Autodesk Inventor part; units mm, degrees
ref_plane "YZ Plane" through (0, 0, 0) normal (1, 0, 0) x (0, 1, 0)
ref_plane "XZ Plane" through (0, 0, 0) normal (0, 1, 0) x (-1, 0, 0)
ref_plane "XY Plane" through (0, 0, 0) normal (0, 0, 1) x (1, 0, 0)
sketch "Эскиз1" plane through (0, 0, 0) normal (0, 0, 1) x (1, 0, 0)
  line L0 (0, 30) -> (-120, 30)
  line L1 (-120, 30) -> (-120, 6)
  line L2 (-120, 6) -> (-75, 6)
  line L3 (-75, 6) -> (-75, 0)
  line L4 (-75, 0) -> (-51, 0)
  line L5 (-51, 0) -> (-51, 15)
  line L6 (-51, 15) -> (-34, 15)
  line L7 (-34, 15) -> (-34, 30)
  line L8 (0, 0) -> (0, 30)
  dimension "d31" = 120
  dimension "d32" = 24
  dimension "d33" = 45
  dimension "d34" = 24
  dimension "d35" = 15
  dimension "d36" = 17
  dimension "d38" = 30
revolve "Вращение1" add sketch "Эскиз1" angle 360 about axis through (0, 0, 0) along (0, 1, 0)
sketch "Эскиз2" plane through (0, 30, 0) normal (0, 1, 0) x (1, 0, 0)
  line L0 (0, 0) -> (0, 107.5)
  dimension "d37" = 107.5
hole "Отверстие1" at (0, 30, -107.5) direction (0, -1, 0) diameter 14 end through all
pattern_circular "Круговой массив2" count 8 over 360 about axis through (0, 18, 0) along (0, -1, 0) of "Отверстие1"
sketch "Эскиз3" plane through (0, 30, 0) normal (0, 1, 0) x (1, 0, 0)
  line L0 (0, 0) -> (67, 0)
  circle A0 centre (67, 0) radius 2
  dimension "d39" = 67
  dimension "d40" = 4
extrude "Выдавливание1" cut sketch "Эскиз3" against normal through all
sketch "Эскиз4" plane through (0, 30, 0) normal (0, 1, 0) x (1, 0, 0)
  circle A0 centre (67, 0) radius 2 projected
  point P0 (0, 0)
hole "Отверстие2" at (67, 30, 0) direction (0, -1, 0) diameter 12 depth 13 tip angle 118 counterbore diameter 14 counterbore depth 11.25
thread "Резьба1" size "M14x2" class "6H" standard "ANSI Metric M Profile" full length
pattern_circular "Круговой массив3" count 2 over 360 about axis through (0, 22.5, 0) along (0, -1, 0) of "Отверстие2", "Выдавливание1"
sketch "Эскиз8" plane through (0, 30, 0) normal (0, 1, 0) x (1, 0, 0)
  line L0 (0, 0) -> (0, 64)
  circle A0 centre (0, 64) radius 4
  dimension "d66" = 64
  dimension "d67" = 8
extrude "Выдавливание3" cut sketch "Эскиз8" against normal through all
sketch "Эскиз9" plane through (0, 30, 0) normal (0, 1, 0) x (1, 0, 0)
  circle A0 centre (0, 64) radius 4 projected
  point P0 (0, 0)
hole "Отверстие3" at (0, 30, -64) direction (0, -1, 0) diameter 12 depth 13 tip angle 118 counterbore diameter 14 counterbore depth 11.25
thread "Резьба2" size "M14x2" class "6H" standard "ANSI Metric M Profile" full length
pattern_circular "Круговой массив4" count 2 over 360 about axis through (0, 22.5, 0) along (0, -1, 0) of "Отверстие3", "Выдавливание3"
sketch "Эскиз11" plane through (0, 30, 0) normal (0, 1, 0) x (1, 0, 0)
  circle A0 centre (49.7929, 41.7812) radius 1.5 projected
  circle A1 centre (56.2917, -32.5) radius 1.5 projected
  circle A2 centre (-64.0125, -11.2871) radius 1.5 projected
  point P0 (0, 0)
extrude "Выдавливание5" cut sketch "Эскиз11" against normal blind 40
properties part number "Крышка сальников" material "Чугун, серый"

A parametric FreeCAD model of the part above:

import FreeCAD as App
import Part
import Sketcher
from FreeCAD import Vector
Q = App.Units.Quantity

doc = App.newDocument("Part")
params = doc.addObject("Spreadsheet::Sheet", "Params")
for row, (alias, value) in enumerate([
    ("sketch1_width", "45 mm"),
    ("sketch1_width2", "24 mm"),
    ("sketch1_width3", "17 mm"),
    ("sketch1_height", "15 mm"),
    ("revolution_angle", "360 deg"),
    ("sketch2_diameter", "14 mm"),
    ("hole_diameter", "14 mm"),
    ("sketch3_diameter", "4 mm"),
    ("sketch4_diameter", "12 mm"),
    ("hole2_diameter", "12 mm"),
    ("hole2_depth", "13 mm"),
    ("hole2_cbore_diameter", "14 mm"),
    ("hole2_cbore_depth", "11.25 mm"),
    ("sketch5_diameter", "8 mm"),
    ("sketch6_diameter", "12 mm"),
    ("hole3_diameter", "12 mm"),
    ("hole3_depth", "13 mm"),
    ("hole3_cbore_diameter", "14 mm"),
    ("hole3_cbore_depth", "11.25 mm"),
    ("sketch7_diameter", "3 mm"),
    ("pocket3_length", "40 mm"),
], start=1):
    params.set(f"A{row}", alias)
    params.set(f"B{row}", "=" + value)
    params.setAlias(f"B{row}", alias)

body = doc.addObject("PartDesign::Body", "Body")

# Sketch on XY plane
sketch1 = body.newObject("Sketcher::SketchObject", "Sketch")
sketch1.AttachmentSupport = (doc.getObject("XY_Plane"), [""])
sketch1.MapMode = "FlatFace"
sketch1.addGeometry([
    Part.LineSegment(Vector(-34, 15, 0), Vector(-34, 30, 0)),  # 0
    Part.LineSegment(Vector(-34, 30, 0), Vector(-120, 30, 0)),  # 1
    Part.LineSegment(Vector(-120, 30, 0), Vector(-120, 6, 0)),  # 2
    Part.LineSegment(Vector(-120, 6, 0), Vector(-75, 6, 0)),  # 3
    Part.LineSegment(Vector(-75, 6, 0), Vector(-75, 0, 0)),  # 4
    Part.LineSegment(Vector(-75, 0, 0), Vector(-51, 0, 0)),  # 5
    Part.LineSegment(Vector(-51, 0, 0), Vector(-51, 15, 0)),  # 6
    Part.LineSegment(Vector(-51, 15, 0), Vector(-34, 15, 0)),  # 7
], False)
sketch1.addConstraint([
    Sketcher.Constraint("Coincident", 0, 2, 1, 1),
    Sketcher.Constraint("Coincident", 1, 2, 2, 1),
    Sketcher.Constraint("Coincident", 2, 2, 3, 1),
    Sketcher.Constraint("Coincident", 3, 2, 4, 1),
    Sketcher.Constraint("Coincident", 4, 2, 5, 1),
    Sketcher.Constraint("Coincident", 5, 2, 6, 1),
    Sketcher.Constraint("Coincident", 6, 2, 7, 1),
    Sketcher.Constraint("Coincident", 7, 2, 0, 1),
    Sketcher.Constraint("Vertical", 0),
    Sketcher.Constraint("Horizontal", 1),
    Sketcher.Constraint("Vertical", 2),
    Sketcher.Constraint("Horizontal", 3),
    Sketcher.Constraint("Vertical", 4),
    Sketcher.Constraint("Horizontal", 5),
    Sketcher.Constraint("Vertical", 6),
    Sketcher.Constraint("Horizontal", 7),
    Sketcher.Constraint("PointOnObject", 4, 2, -1),
    Sketcher.Constraint("Equal", 5, 2),
    Sketcher.Constraint("Equal", 0, 6),
    Sketcher.Constraint("DistanceX", 3, 1, 3, 2, Q("45 mm")),
    Sketcher.Constraint("DistanceX", 5, 1, 5, 2, Q("24 mm")),
    Sketcher.Constraint("DistanceX", 7, 1, 7, 2, Q("17 mm")),
    Sketcher.Constraint("DistanceY", 0, 1, 0, 2, Q("15 mm")),
    Sketcher.Constraint("DistanceX", 1, 2, -1, 1, Q("120 mm")),
])
sketch1.setExpression("Constraints[19]", "Params.sketch1_width")
sketch1.setExpression("Constraints[20]", "Params.sketch1_width2")
sketch1.setExpression("Constraints[21]", "Params.sketch1_width3")
sketch1.setExpression("Constraints[22]", "Params.sketch1_height")
revolution = body.newObject("PartDesign::Revolution", "Revolution")
revolution.Profile = sketch1
revolution.ReferenceAxis = (sketch1, ["V_Axis"])
revolution.setExpression("Angle", "Params.revolution_angle")

# Sketch on XZ plane
sketch2 = body.newObject("Sketcher::SketchObject", "Sketch001")
sketch2.AttachmentSupport = (doc.getObject("XZ_Plane"), [""])
sketch2.MapMode = "FlatFace"
sketch2.AttachmentOffset = App.Placement(Vector(0, 0, -30), App.Rotation())
sketch2.addGeometry(Part.Circle(Vector(0, -107.5, 0), Vector(0, 0, 1), 7), False)
sketch2.addConstraint([
    Sketcher.Constraint("PointOnObject", 0, 3, -2),
    Sketcher.Constraint("Diameter", 0, Q("14 mm")),
    Sketcher.Constraint("DistanceY", 0, 3, -1, 1, Q("107.5 mm")),
])
sketch2.setExpression("Constraints[1]", "Params.sketch2_diameter")
doc.recompute()
hole = body.newObject("PartDesign::Hole", "Hole")
hole.Profile = sketch2
hole.ThreadType = "None"
hole.setExpression("Diameter", "Params.hole_diameter")
hole.DepthType = "ThroughAll"
hole.Reversed = True
doc.recompute()

polarpattern = body.newObject("PartDesign::PolarPattern", "PolarPattern")
polarpattern.Originals = [hole]
polarpattern.Axis = (doc.getObject("Y_Axis"), [""])
polarpattern.Angle = 360
polarpattern.Occurrences = 8
body.Tip = polarpattern

# Sketch on XZ plane
sketch3 = body.newObject("Sketcher::SketchObject", "Sketch002")
sketch3.AttachmentSupport = (doc.getObject("XZ_Plane"), [""])
sketch3.MapMode = "FlatFace"
sketch3.AttachmentOffset = App.Placement(Vector(0, 0, -30), App.Rotation())
sketch3.addGeometry(Part.Circle(Vector(67, 0, 0), Vector(0, 0, 1), 2), False)
sketch3.addConstraint([
    Sketcher.Constraint("PointOnObject", 0, 3, -1),
    Sketcher.Constraint("Diameter", 0, Q("4 mm")),
    Sketcher.Constraint("DistanceX", -1, 1, 0, 3, Q("67 mm")),
])
sketch3.setExpression("Constraints[1]", "Params.sketch3_diameter")
pocket1 = body.newObject("PartDesign::Pocket", "Pocket")
pocket1.Profile = sketch3
pocket1.Type = "ThroughAll"
pocket1.Reversed = True

# Sketch on XZ plane
sketch4 = body.newObject("Sketcher::SketchObject", "Sketch003")
sketch4.AttachmentSupport = (doc.getObject("XZ_Plane"), [""])
sketch4.MapMode = "FlatFace"
sketch4.AttachmentOffset = App.Placement(Vector(0, 0, -30), App.Rotation())
sketch4.addGeometry(Part.Circle(Vector(67, 0, 0), Vector(0, 0, 1), 6), False)
sketch4.addConstraint([
    Sketcher.Constraint("PointOnObject", 0, 3, -1),
    Sketcher.Constraint("Diameter", 0, Q("12 mm")),
    Sketcher.Constraint("DistanceX", -1, 1, 0, 3, Q("67 mm")),
])
sketch4.setExpression("Constraints[1]", "Params.sketch4_diameter")
doc.recompute()
hole2 = body.newObject("PartDesign::Hole", "Hole001")
hole2.Profile = sketch4
hole2.ThreadType = "None"
hole2.setExpression("Diameter", "Params.hole2_diameter")
hole2.DepthType = "Dimension"
hole2.setExpression("Depth", "Params.hole2_depth")
hole2.DrillPoint = "Angled"
hole2.DrillPointAngle = 118
hole2.HoleCutType = "Counterbore"
hole2.setExpression("HoleCutDiameter", "Params.hole2_cbore_diameter")
hole2.setExpression("HoleCutDepth", "Params.hole2_cbore_depth")
hole2.Reversed = True
doc.recompute()

polarpattern2 = body.newObject("PartDesign::PolarPattern", "PolarPattern001")
polarpattern2.Originals = [hole2, pocket1]
polarpattern2.Axis = (doc.getObject("Y_Axis"), [""])
polarpattern2.Angle = 360
polarpattern2.Occurrences = 2
body.Tip = polarpattern2

# Sketch on XZ plane
sketch5 = body.newObject("Sketcher::SketchObject", "Sketch004")
sketch5.AttachmentSupport = (doc.getObject("XZ_Plane"), [""])
sketch5.MapMode = "FlatFace"
sketch5.AttachmentOffset = App.Placement(Vector(0, 0, -30), App.Rotation())
sketch5.addGeometry(Part.Circle(Vector(0, -64, 0), Vector(0, 0, 1), 4), False)
sketch5.addConstraint([
    Sketcher.Constraint("PointOnObject", 0, 3, -2),
    Sketcher.Constraint("Diameter", 0, Q("8 mm")),
    Sketcher.Constraint("DistanceY", 0, 3, -1, 1, Q("64 mm")),
])
sketch5.setExpression("Constraints[1]", "Params.sketch5_diameter")
pocket2 = body.newObject("PartDesign::Pocket", "Pocket001")
pocket2.Profile = sketch5
pocket2.Type = "ThroughAll"
pocket2.Reversed = True

# Sketch on XZ plane
sketch6 = body.newObject("Sketcher::SketchObject", "Sketch005")
sketch6.AttachmentSupport = (doc.getObject("XZ_Plane"), [""])
sketch6.MapMode = "FlatFace"
sketch6.AttachmentOffset = App.Placement(Vector(0, 0, -30), App.Rotation())
sketch6.addGeometry(Part.Circle(Vector(0, -64, 0), Vector(0, 0, 1), 6), False)
sketch6.addConstraint([
    Sketcher.Constraint("PointOnObject", 0, 3, -2),
    Sketcher.Constraint("Diameter", 0, Q("12 mm")),
    Sketcher.Constraint("DistanceY", 0, 3, -1, 1, Q("64 mm")),
])
sketch6.setExpression("Constraints[1]", "Params.sketch6_diameter")
doc.recompute()
hole3 = body.newObject("PartDesign::Hole", "Hole002")
hole3.Profile = sketch6
hole3.ThreadType = "None"
hole3.setExpression("Diameter", "Params.hole3_diameter")
hole3.DepthType = "Dimension"
hole3.setExpression("Depth", "Params.hole3_depth")
hole3.DrillPoint = "Angled"
hole3.DrillPointAngle = 118
hole3.HoleCutType = "Counterbore"
hole3.setExpression("HoleCutDiameter", "Params.hole3_cbore_diameter")
hole3.setExpression("HoleCutDepth", "Params.hole3_cbore_depth")
hole3.Reversed = True
doc.recompute()

polarpattern3 = body.newObject("PartDesign::PolarPattern", "PolarPattern002")
polarpattern3.Originals = [hole3, pocket2]
polarpattern3.Axis = (doc.getObject("Y_Axis"), [""])
polarpattern3.Angle = 360
polarpattern3.Occurrences = 2
body.Tip = polarpattern3

# Sketch on XZ plane
sketch7 = body.newObject("Sketcher::SketchObject", "Sketch006")
sketch7.AttachmentSupport = (doc.getObject("XZ_Plane"), [""])
sketch7.MapMode = "FlatFace"
sketch7.AttachmentOffset = App.Placement(Vector(0, 0, -30), App.Rotation())
sketch7.addGeometry([
    Part.Circle(Vector(49.7929, -41.7812, 0), Vector(0, 0, 1), 1.5),
    Part.Circle(Vector(56.2917, 32.5, 0), Vector(0, 0, 1), 1.5),
    Part.Circle(Vector(-64.0125, 11.2871, 0), Vector(0, 0, 1), 1.5),
], False)
sketch7.addConstraint([
    Sketcher.Constraint("Equal", 0, 1),
    Sketcher.Constraint("Equal", 1, 2),
    Sketcher.Constraint("Diameter", 0, Q("3 mm")),
    Sketcher.Constraint("DistanceY", -1, 1, 1, 3, Q("32.5 mm")),
    Sketcher.Constraint("DistanceX", -1, 1, 0, 3, Q("49.793 mm")),
    Sketcher.Constraint("DistanceY", -1, 1, 2, 3, Q("11.287 mm")),
    Sketcher.Constraint("DistanceY", 0, 3, -1, 1, Q("41.7812 mm")),
    Sketcher.Constraint("DistanceX", -1, 1, 1, 3, Q("56.2917 mm")),
    Sketcher.Constraint("DistanceX", 2, 3, -1, 1, Q("64.0125 mm")),
])
sketch7.setExpression("Constraints[2]", "Params.sketch7_diameter")
pocket3 = body.newObject("PartDesign::Pocket", "Pocket002")
pocket3.Profile = sketch7
pocket3.setExpression("Length", "Params.pocket3_length")
pocket3.Reversed = True

doc.recompute()
